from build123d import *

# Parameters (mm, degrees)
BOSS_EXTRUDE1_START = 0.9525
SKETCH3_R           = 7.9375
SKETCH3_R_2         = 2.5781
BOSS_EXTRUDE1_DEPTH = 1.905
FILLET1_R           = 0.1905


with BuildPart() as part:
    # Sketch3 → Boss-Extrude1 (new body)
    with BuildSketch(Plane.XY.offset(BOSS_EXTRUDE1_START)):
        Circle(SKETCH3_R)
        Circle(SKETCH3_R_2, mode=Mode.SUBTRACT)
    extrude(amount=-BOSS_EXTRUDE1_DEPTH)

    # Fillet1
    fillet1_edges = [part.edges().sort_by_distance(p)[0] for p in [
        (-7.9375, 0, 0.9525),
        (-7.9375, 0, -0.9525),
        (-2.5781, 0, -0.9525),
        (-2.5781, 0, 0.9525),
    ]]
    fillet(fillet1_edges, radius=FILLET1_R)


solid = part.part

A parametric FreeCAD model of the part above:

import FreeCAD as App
import Part
import Sketcher

V = App.Vector
Q = App.Units.Quantity


def edges_at(feature, points):
    """Names of the edges that pass closest to the given points."""
    edges = feature.Shape.Edges
    near = lambda p: min(range(len(edges)), key=lambda i: edges[i].distToShape(Part.Vertex(*p))[0])
    return sorted({f"Edge{near(p) + 1}" for p in points})

doc = App.newDocument("Part")
body = doc.addObject("PartDesign::Body", "Body")

sketch1 = body.newObject("Sketcher::SketchObject", "Sketch")
sketch1.AttachmentSupport = (doc.getObject("XY_Plane"), [""])
sketch1.MapMode = "FlatFace"
sketch1.AttachmentOffset = App.Placement(V(0, 0, 0.0375 * 25.4), App.Rotation())
sketch1.addGeometry(Part.Circle(V(0, 0, 0), V(0, 0, 1), 7.9375), False)
sketch1.addGeometry(Part.Circle(V(0, 0, 0), V(0, 0, 1), 2.5781), False)
sketch1.addConstraint(Sketcher.Constraint("Coincident", 0, 3, -1, 1))
sketch1.addConstraint(Sketcher.Constraint("Coincident", 1, 3, -1, 1))
sketch1.addConstraint(Sketcher.Constraint("Diameter", 0, Q("0.625 in")))
sketch1.addConstraint(Sketcher.Constraint("Diameter", 1, Q("0.203 in")))
pad1 = body.newObject("PartDesign::Pad", "Pad")
pad1.Profile = sketch1
pad1.Length = Q("0.075 in")
pad1.Reversed = True
doc.recompute()

fillet = body.newObject("PartDesign::Fillet", "Fillet")
fillet.Base = (pad1, edges_at(pad1, [
    (-7.938, 0, 0.953),
    (-7.938, 0, -0.953),
    (-2.578, 0, -0.953),
    (-2.578, 0, 0.953),
]))
fillet.Radius = Q("0.0075 in")

doc.recompute()
